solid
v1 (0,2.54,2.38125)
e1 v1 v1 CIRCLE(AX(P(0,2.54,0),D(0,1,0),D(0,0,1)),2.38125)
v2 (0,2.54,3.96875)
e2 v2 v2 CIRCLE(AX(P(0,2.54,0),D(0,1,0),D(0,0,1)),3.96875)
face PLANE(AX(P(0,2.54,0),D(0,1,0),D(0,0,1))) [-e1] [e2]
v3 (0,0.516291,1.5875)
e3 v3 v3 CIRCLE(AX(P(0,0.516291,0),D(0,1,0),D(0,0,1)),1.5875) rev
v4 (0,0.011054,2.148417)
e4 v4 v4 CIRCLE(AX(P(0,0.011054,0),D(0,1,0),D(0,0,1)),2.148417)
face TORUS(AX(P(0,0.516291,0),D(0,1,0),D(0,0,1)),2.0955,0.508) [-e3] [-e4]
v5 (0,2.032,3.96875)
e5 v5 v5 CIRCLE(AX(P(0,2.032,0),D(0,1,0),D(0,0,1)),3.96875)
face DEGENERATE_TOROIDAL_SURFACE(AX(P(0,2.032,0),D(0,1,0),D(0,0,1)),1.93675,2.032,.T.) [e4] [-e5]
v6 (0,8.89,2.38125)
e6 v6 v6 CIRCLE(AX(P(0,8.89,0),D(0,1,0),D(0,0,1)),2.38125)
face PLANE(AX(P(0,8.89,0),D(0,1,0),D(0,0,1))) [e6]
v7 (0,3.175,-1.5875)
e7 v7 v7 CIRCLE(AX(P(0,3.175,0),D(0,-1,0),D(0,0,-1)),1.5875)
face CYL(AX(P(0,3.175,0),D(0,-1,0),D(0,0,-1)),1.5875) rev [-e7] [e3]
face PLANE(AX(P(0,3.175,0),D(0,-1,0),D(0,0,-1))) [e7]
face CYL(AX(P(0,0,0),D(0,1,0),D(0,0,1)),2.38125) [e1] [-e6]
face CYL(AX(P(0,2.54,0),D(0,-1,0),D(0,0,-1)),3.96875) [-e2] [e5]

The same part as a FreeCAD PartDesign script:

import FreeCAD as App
import Part
import Sketcher
from FreeCAD import Vector
Q = App.Units.Quantity


def edges_at(feature, points):
    """Names of the edges that pass closest to the given points."""
    edges = feature.Shape.Edges
    near = lambda p: min(range(len(edges)), key=lambda i: edges[i].distToShape(Part.Vertex(*p))[0])
    return sorted({f"Edge{near(p) + 1}" for p in points})

doc = App.newDocument("Part")
body = doc.addObject("PartDesign::Body", "Body")

sketch1 = body.newObject("Sketcher::SketchObject", "Sketch")
sketch1.AttachmentSupport = (doc.getObject("XZ_Plane"), [""])
sketch1.MapMode = "FlatFace"
sketch1.addGeometry([
    Part.Circle(Vector(0, 0, 0), Vector(0, 0, 1), 4),
    Part.Circle(Vector(0, 0, 0), Vector(0, 0, 1), 2.4),
], False)
sketch1.addConstraint([
    Sketcher.Constraint("Coincident", 0, 3, -1, 1),
    Sketcher.Constraint("Coincident", 1, 3, -1, 1),
    Sketcher.Constraint("Diameter", 0, Q("0.3125 in")),
    Sketcher.Constraint("Diameter", 1, Q("0.1875 in")),
])
pad1 = body.newObject("PartDesign::Pad", "Pad")
pad1.Profile = sketch1
pad1.Length = Q("0.1 in")
pad1.Reversed = True

sketch2 = body.newObject("Sketcher::SketchObject", "Sketch001")
sketch2.AttachmentSupport = (doc.getObject("XZ_Plane"), [""])
sketch2.MapMode = "FlatFace"
sketch2.AttachmentOffset = App.Placement(Vector(0, 0, -0.1 * 25.4), App.Rotation())
sketch2.addGeometry(Part.Circle(Vector(0, 0, 0), Vector(0, 0, 1), 2.4), False)
sketch2.addConstraint([
    Sketcher.Constraint("Coincident", 0, 3, -1, 1),
    Sketcher.Constraint("Diameter", 0, Q("0.1875 in")),
])
pad2 = body.newObject("PartDesign::Pad", "Pad001")
pad2.Profile = sketch2
pad2.Type = "TwoLengths"
pad2.Length = Q("0.25 in")
pad2.Length2 = Q("0.1 in")
pad2.Reversed = True

sketch3 = body.newObject("Sketcher::SketchObject", "Sketch002")
sketch3.AttachmentSupport = (doc.getObject("XZ_Plane"), [""])
sketch3.MapMode = "FlatFace"
sketch3.addGeometry(Part.Circle(Vector(0, 0, 0), Vector(0, 0, 1), 1.6), False)
sketch3.addConstraint([
    Sketcher.Constraint("Coincident", 0, 3, -1, 1),
    Sketcher.Constraint("Diameter", 0, Q("0.125 in")),
])
pocket1 = body.newObject("PartDesign::Pocket", "Pocket")
pocket1.Profile = sketch3
pocket1.Length = Q("0.125 in")
doc.recompute()

fillet = body.newObject("PartDesign::Fillet", "Fillet")
fillet.Base = (pocket1, edges_at(pocket1, [(0, 0, -3.969)]))
fillet.Radius = Q("0.08 in")
doc.recompute()

fillet2 = body.newObject("PartDesign::Fillet", "Fillet001")
fillet2.Base = (fillet, edges_at(fillet, [(0, 0, 1.587)]))
fillet2.Radius = Q("0.02 in")

doc.recompute()
